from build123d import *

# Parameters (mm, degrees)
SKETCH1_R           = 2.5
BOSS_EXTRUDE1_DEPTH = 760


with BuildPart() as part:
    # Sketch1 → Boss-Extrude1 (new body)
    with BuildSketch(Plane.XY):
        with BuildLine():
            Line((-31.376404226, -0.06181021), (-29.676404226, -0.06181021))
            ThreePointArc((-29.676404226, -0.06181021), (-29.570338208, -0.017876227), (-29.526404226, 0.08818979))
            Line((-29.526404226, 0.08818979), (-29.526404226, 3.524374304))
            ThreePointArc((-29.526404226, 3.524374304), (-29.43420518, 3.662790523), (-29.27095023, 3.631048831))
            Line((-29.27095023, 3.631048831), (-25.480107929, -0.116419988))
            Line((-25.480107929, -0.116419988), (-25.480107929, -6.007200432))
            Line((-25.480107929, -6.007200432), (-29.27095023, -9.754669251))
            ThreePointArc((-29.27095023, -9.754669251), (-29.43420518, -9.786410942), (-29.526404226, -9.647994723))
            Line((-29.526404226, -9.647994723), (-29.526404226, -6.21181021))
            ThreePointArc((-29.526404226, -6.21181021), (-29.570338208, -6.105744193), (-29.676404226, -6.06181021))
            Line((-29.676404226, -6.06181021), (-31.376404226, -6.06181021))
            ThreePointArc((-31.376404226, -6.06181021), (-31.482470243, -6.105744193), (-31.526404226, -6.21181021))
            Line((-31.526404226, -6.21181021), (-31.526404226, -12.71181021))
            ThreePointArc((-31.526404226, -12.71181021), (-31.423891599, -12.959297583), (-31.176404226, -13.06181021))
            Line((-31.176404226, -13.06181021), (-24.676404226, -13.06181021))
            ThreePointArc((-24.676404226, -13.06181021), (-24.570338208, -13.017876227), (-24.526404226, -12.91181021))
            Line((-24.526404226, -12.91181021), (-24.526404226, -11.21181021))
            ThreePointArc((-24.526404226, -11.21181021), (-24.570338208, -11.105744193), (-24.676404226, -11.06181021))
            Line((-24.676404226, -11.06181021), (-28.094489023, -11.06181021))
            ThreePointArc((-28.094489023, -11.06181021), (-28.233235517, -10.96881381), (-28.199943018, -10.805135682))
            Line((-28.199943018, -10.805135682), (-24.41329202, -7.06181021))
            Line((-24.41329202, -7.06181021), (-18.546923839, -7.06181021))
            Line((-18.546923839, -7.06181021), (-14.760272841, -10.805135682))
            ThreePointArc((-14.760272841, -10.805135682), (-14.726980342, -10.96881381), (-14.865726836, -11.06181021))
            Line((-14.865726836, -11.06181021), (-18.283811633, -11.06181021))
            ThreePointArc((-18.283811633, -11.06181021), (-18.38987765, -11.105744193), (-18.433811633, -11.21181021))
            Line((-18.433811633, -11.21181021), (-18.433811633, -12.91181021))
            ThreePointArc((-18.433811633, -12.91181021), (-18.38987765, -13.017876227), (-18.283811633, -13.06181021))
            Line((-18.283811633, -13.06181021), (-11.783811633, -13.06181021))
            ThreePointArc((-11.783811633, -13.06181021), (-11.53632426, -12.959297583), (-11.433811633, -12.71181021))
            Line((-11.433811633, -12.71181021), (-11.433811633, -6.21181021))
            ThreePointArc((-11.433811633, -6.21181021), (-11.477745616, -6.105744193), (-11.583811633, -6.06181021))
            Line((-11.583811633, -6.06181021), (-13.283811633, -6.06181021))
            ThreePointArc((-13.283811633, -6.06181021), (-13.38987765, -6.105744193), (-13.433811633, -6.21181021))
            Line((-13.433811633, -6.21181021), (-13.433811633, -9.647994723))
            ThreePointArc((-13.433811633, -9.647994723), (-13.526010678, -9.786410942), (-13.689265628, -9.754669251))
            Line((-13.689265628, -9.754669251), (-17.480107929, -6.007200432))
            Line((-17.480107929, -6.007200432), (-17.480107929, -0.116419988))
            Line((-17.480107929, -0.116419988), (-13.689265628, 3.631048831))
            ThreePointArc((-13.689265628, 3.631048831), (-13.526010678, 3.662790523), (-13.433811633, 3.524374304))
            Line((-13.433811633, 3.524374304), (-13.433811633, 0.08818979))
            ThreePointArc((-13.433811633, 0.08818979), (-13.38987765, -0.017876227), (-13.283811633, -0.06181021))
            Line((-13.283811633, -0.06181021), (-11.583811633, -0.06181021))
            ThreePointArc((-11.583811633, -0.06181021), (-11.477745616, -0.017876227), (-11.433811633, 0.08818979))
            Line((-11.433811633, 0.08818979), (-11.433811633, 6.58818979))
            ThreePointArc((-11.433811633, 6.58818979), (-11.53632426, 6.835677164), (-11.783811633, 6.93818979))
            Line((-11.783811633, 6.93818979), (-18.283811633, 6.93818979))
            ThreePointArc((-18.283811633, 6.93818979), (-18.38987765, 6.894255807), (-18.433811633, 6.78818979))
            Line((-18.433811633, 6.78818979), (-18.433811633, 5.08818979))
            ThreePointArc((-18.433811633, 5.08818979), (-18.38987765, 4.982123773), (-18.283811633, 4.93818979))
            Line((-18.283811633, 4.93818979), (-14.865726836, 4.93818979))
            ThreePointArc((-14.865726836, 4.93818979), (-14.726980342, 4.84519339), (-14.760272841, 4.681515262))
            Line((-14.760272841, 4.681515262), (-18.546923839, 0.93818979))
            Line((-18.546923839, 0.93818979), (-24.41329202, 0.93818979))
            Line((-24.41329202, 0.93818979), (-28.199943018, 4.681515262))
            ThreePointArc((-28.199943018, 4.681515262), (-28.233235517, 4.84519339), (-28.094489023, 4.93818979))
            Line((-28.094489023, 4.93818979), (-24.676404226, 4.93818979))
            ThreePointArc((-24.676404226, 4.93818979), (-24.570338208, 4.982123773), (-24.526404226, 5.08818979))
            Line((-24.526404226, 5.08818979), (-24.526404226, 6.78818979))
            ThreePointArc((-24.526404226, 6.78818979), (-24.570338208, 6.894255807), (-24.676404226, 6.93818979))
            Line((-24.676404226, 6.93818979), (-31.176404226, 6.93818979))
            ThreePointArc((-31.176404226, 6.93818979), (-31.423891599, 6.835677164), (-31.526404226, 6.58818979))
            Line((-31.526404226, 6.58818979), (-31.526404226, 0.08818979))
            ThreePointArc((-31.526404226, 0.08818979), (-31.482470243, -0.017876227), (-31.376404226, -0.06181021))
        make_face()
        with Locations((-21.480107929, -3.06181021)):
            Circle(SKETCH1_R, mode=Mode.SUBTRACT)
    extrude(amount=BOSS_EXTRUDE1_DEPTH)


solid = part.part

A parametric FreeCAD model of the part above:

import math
import FreeCAD as App
import Part
import Sketcher
Q = App.Units.Quantity

doc = App.newDocument("Part")
body = doc.addObject("PartDesign::Body", "Body")

sketch1 = body.newObject("Sketcher::SketchObject", "Sketch")
sketch1.AttachmentSupport = (doc.getObject("XY_Plane"), [""])
sketch1.MapMode = "FlatFace"
sketch1.addGeometry([
    Part.LineSegment(App.Vector(-31.376404, -0.06181, 0), App.Vector(-29.676404, -0.06181, 0)),
    Part.ArcOfCircle(Part.Circle(App.Vector(-29.676404, 0.08819, 0), App.Vector(0, 0, 1), 0.15), math.radians(-90), math.radians(0)),
    Part.LineSegment(App.Vector(-29.526404, 0.08819, 0), App.Vector(-29.526404, 3.524374, 0)),
    Part.ArcOfCircle(Part.Circle(App.Vector(-29.376404, 3.524374, 0), App.Vector(0, 0, 1), 0.15), math.radians(45.329661), math.radians(180)),
    Part.LineSegment(App.Vector(-29.27095, 3.631049, 0), App.Vector(-25.480108, -0.11642, 0)),
    Part.LineSegment(App.Vector(-25.480108, -0.11642, 0), App.Vector(-25.480108, -6.0072, 0)),
    Part.LineSegment(App.Vector(-25.480108, -6.0072, 0), App.Vector(-29.27095, -9.754669, 0)),
    Part.ArcOfCircle(Part.Circle(App.Vector(-29.376404, -9.647995, 0), App.Vector(0, 0, 1), 0.15), math.radians(-180), math.radians(-45.329662)),
    Part.LineSegment(App.Vector(-29.526404, -9.647995, 0), App.Vector(-29.526404, -6.21181, 0)),
    Part.ArcOfCircle(Part.Circle(App.Vector(-29.676404, -6.21181, 0), App.Vector(0, 0, 1), 0.15), math.radians(0), math.radians(90)),
    Part.LineSegment(App.Vector(-29.676404, -6.06181, 0), App.Vector(-31.376404, -6.06181, 0)),
    Part.ArcOfCircle(Part.Circle(App.Vector(-31.376404, -6.21181, 0), App.Vector(0, 0, 1), 0.15), math.radians(90), math.radians(180)),
    Part.LineSegment(App.Vector(-31.526404, -6.21181, 0), App.Vector(-31.526404, -12.71181, 0)),
    Part.ArcOfCircle(Part.Circle(App.Vector(-31.176404, -12.71181, 0), App.Vector(0, 0, 1), 0.35), math.radians(-180), math.radians(-90)),
    Part.LineSegment(App.Vector(-31.176404, -13.06181, 0), App.Vector(-24.676404, -13.06181, 0)),
    Part.ArcOfCircle(Part.Circle(App.Vector(-24.676404, -12.91181, 0), App.Vector(0, 0, 1), 0.15), math.radians(-90), math.radians(0)),
    Part.LineSegment(App.Vector(-24.526404, -12.91181, 0), App.Vector(-24.526404, -11.21181, 0)),
    Part.ArcOfCircle(Part.Circle(App.Vector(-24.676404, -11.21181, 0), App.Vector(0, 0, 1), 0.15), math.radians(0), math.radians(90)),
    Part.LineSegment(App.Vector(-24.676404, -11.06181, 0), App.Vector(-28.094489, -11.06181, 0)),
    Part.ArcOfCircle(Part.Circle(App.Vector(-28.094489, -10.91181, 0), App.Vector(0, 0, 1), 0.15), math.radians(134.670338), math.radians(270)),
    Part.LineSegment(App.Vector(-28.199943, -10.805136, 0), App.Vector(-24.413292, -7.06181, 0)),
    Part.LineSegment(App.Vector(-24.413292, -7.06181, 0), App.Vector(-18.546924, -7.06181, 0)),
    Part.LineSegment(App.Vector(-18.546924, -7.06181, 0), App.Vector(-14.760273, -10.805136, 0)),
    Part.ArcOfCircle(Part.Circle(App.Vector(-14.865727, -10.91181, 0), App.Vector(0, 0, 1), 0.15), math.radians(-90), math.radians(45.329662)),
    Part.LineSegment(App.Vector(-14.865727, -11.06181, 0), App.Vector(-18.283812, -11.06181, 0)),
    Part.ArcOfCircle(Part.Circle(App.Vector(-18.283812, -11.21181, 0), App.Vector(0, 0, 1), 0.15), math.radians(90), math.radians(180)),
    Part.LineSegment(App.Vector(-18.433812, -11.21181, 0), App.Vector(-18.433812, -12.91181, 0)),
    Part.ArcOfCircle(Part.Circle(App.Vector(-18.283812, -12.91181, 0), App.Vector(0, 0, 1), 0.15), math.radians(-180), math.radians(-90)),
    Part.LineSegment(App.Vector(-18.283812, -13.06181, 0), App.Vector(-11.783812, -13.06181, 0)),
    Part.ArcOfCircle(Part.Circle(App.Vector(-11.783812, -12.71181, 0), App.Vector(0, 0, 1), 0.35), math.radians(-90), math.radians(0)),
    Part.LineSegment(App.Vector(-11.433812, -12.71181, 0), App.Vector(-11.433812, -6.21181, 0)),
    Part.ArcOfCircle(Part.Circle(App.Vector(-11.583812, -6.21181, 0), App.Vector(0, 0, 1), 0.15), math.radians(0), math.radians(90)),
    Part.LineSegment(App.Vector(-11.583812, -6.06181, 0), App.Vector(-13.283812, -6.06181, 0)),
    Part.ArcOfCircle(Part.Circle(App.Vector(-13.283812, -6.21181, 0), App.Vector(0, 0, 1), 0.15), math.radians(90), math.radians(180)),
    Part.LineSegment(App.Vector(-13.433812, -6.21181, 0), App.Vector(-13.433812, -9.647995, 0)),
    Part.ArcOfCircle(Part.Circle(App.Vector(-13.583812, -9.647995, 0), App.Vector(0, 0, 1), 0.15), math.radians(-134.670338), math.radians(0)),
    Part.LineSegment(App.Vector(-13.689266, -9.754669, 0), App.Vector(-17.480108, -6.0072, 0)),
    Part.LineSegment(App.Vector(-17.480108, -6.0072, 0), App.Vector(-17.480108, -0.11642, 0)),
    Part.LineSegment(App.Vector(-17.480108, -0.11642, 0), App.Vector(-13.689266, 3.631049, 0)),
    Part.ArcOfCircle(Part.Circle(App.Vector(-13.583812, 3.524374, 0), App.Vector(0, 0, 1), 0.15), math.radians(0), math.radians(134.670339)),
    Part.LineSegment(App.Vector(-13.433812, 3.524374, 0), App.Vector(-13.433812, 0.08819, 0)),
    Part.ArcOfCircle(Part.Circle(App.Vector(-13.283812, 0.08819, 0), App.Vector(0, 0, 1), 0.15), math.radians(-180), math.radians(-90)),
    Part.LineSegment(App.Vector(-13.283812, -0.06181, 0), App.Vector(-11.583812, -0.06181, 0)),
    Part.ArcOfCircle(Part.Circle(App.Vector(-11.583812, 0.08819, 0), App.Vector(0, 0, 1), 0.15), math.radians(-90), math.radians(0)),
    Part.LineSegment(App.Vector(-11.433812, 0.08819, 0), App.Vector(-11.433812, 6.58819, 0)),
    Part.ArcOfCircle(Part.Circle(App.Vector(-11.783812, 6.58819, 0), App.Vector(0, 0, 1), 0.35), math.radians(0), math.radians(90)),
    Part.LineSegment(App.Vector(-11.783812, 6.93819, 0), App.Vector(-18.283812, 6.93819, 0)),
    Part.ArcOfCircle(Part.Circle(App.Vector(-18.283812, 6.78819, 0), App.Vector(0, 0, 1), 0.15), math.radians(90), math.radians(180)),
    Part.LineSegment(App.Vector(-18.433812, 6.78819, 0), App.Vector(-18.433812, 5.08819, 0)),
    Part.ArcOfCircle(Part.Circle(App.Vector(-18.283812, 5.08819, 0), App.Vector(0, 0, 1), 0.15), math.radians(-180), math.radians(-90)),
    Part.LineSegment(App.Vector(-18.283812, 4.93819, 0), App.Vector(-14.865727, 4.93819, 0)),
    Part.ArcOfCircle(Part.Circle(App.Vector(-14.865727, 4.78819, 0), App.Vector(0, 0, 1), 0.15), math.radians(-45.329662), math.radians(90)),
    Part.LineSegment(App.Vector(-14.760273, 4.681515, 0), App.Vector(-18.546924, 0.93819, 0)),
    Part.LineSegment(App.Vector(-18.546924, 0.93819, 0), App.Vector(-24.413292, 0.93819, 0)),
    Part.LineSegment(App.Vector(-24.413292, 0.93819, 0), App.Vector(-28.199943, 4.681515, 0)),
    Part.ArcOfCircle(Part.Circle(App.Vector(-28.094489, 4.78819, 0), App.Vector(0, 0, 1), 0.15), math.radians(90), math.radians(225.329662)),
    Part.LineSegment(App.Vector(-28.094489, 4.93819, 0), App.Vector(-24.676404, 4.93819, 0)),
    Part.ArcOfCircle(Part.Circle(App.Vector(-24.676404, 5.08819, 0), App.Vector(0, 0, 1), 0.15), math.radians(-90), math.radians(0)),
    Part.LineSegment(App.Vector(-24.526404, 5.08819, 0), App.Vector(-24.526404, 6.78819, 0)),
    Part.ArcOfCircle(Part.Circle(App.Vector(-24.676404, 6.78819, 0), App.Vector(0, 0, 1), 0.15), math.radians(0), math.radians(90)),
    Part.LineSegment(App.Vector(-24.676404, 6.93819, 0), App.Vector(-31.176404, 6.93819, 0)),
    Part.ArcOfCircle(Part.Circle(App.Vector(-31.176404, 6.58819, 0), App.Vector(0, 0, 1), 0.35), math.radians(90), math.radians(180)),
    Part.LineSegment(App.Vector(-31.526404, 6.58819, 0), App.Vector(-31.526404, 0.08819, 0)),
    Part.ArcOfCircle(Part.Circle(App.Vector(-31.376404, 0.08819, 0), App.Vector(0, 0, 1), 0.15), math.radians(-180), math.radians(-90)),
    Part.Circle(App.Vector(-21.480108, -3.06181, 0), App.Vector(0, 0, 1), 2.5),
], False)
sketch1.addConstraint([
    Sketcher.Constraint("Tangent", 0, 2, 1, 1),
    Sketcher.Constraint("Tangent", 1, 2, 2, 1),
    Sketcher.Constraint("Tangent", 2, 2, 3, 2),
    Sketcher.Constraint("Tangent", 3, 1, 4, 1),
    Sketcher.Constraint("Coincident", 4, 2, 5, 1),
    Sketcher.Constraint("Coincident", 5, 2, 6, 1),
    Sketcher.Constraint("Tangent", 6, 2, 7, 2),
    Sketcher.Constraint("Tangent", 7, 1, 8, 1),
    Sketcher.Constraint("Tangent", 8, 2, 9, 1),
    Sketcher.Constraint("Tangent", 9, 2, 10, 1),
    Sketcher.Constraint("Tangent", 10, 2, 11, 1),
    Sketcher.Constraint("Tangent", 11, 2, 12, 1),
    Sketcher.Constraint("Tangent", 12, 2, 13, 1),
    Sketcher.Constraint("Tangent", 13, 2, 14, 1),
    Sketcher.Constraint("Tangent", 14, 2, 15, 1),
    Sketcher.Constraint("Tangent", 15, 2, 16, 1),
    Sketcher.Constraint("Tangent", 16, 2, 17, 1),
    Sketcher.Constraint("Tangent", 17, 2, 18, 1),
    Sketcher.Constraint("Tangent", 18, 2, 19, 2),
    Sketcher.Constraint("Tangent", 19, 1, 20, 1),
    Sketcher.Constraint("Coincident", 20, 2, 21, 1),
    Sketcher.Constraint("Coincident", 21, 2, 22, 1),
    Sketcher.Constraint("Tangent", 22, 2, 23, 2),
    Sketcher.Constraint("Tangent", 23, 1, 24, 1),
    Sketcher.Constraint("Tangent", 24, 2, 25, 1),
    Sketcher.Constraint("Tangent", 25, 2, 26, 1),
    Sketcher.Constraint("Tangent", 26, 2, 27, 1),
    Sketcher.Constraint("Tangent", 27, 2, 28, 1),
    Sketcher.Constraint("Tangent", 28, 2, 29, 1),
    Sketcher.Constraint("Tangent", 29, 2, 30, 1),
    Sketcher.Constraint("Tangent", 30, 2, 31, 1),
    Sketcher.Constraint("Tangent", 31, 2, 32, 1),
    Sketcher.Constraint("Tangent", 32, 2, 33, 1),
    Sketcher.Constraint("Tangent", 33, 2, 34, 1),
    Sketcher.Constraint("Tangent", 34, 2, 35, 2),
    Sketcher.Constraint("Tangent", 35, 1, 36, 1),
    Sketcher.Constraint("Coincident", 36, 2, 37, 1),
    Sketcher.Constraint("Coincident", 37, 2, 38, 1),
    Sketcher.Constraint("Tangent", 38, 2, 39, 2),
    Sketcher.Constraint("Tangent", 39, 1, 40, 1),
    Sketcher.Constraint("Tangent", 40, 2, 41, 1),
    Sketcher.Constraint("Tangent", 41, 2, 42, 1),
    Sketcher.Constraint("Tangent", 42, 2, 43, 1),
    Sketcher.Constraint("Tangent", 43, 2, 44, 1),
    Sketcher.Constraint("Tangent", 44, 2, 45, 1),
    Sketcher.Constraint("Tangent", 45, 2, 46, 1),
    Sketcher.Constraint("Tangent", 46, 2, 47, 1),
    Sketcher.Constraint("Tangent", 47, 2, 48, 1),
    Sketcher.Constraint("Tangent", 48, 2, 49, 1),
    Sketcher.Constraint("Tangent", 49, 2, 50, 1),
    Sketcher.Constraint("Tangent", 50, 2, 51, 2),
    Sketcher.Constraint("Tangent", 51, 1, 52, 1),
    Sketcher.Constraint("Coincident", 52, 2, 53, 1),
    Sketcher.Constraint("Coincident", 53, 2, 54, 1),
    Sketcher.Constraint("Tangent", 54, 2, 55, 2),
    Sketcher.Constraint("Tangent", 55, 1, 56, 1),
    Sketcher.Constraint("Tangent", 56, 2, 57, 1),
    Sketcher.Constraint("Tangent", 57, 2, 58, 1),
    Sketcher.Constraint("Tangent", 58, 2, 59, 1),
    Sketcher.Constraint("Tangent", 59, 2, 60, 1),
    Sketcher.Constraint("Tangent", 60, 2, 61, 1),
    Sketcher.Constraint("Tangent", 61, 2, 62, 1),
    Sketcher.Constraint("Tangent", 62, 2, 63, 1),
    Sketcher.Constraint("Tangent", 63, 2, 0, 1),
    Sketcher.Constraint("Horizontal", 0),
    Sketcher.Constraint("Vertical", 2),
    Sketcher.Constraint("Vertical", 5),
    Sketcher.Constraint("Vertical", 8),
    Sketcher.Constraint("Horizontal", 10),
    Sketcher.Constraint("Vertical", 12),
    Sketcher.Constraint("Horizontal", 14),
    Sketcher.Constraint("Vertical", 16),
    Sketcher.Constraint("Horizontal", 18),
    Sketcher.Constraint("Horizontal", 21),
    Sketcher.Constraint("Horizontal", 24),
    Sketcher.Constraint("Vertical", 26),
    Sketcher.Constraint("Horizontal", 28),
    Sketcher.Constraint("Vertical", 30),
    Sketcher.Constraint("Horizontal", 32),
    Sketcher.Constraint("Vertical", 34),
    Sketcher.Constraint("Vertical", 37),
    Sketcher.Constraint("Vertical", 40),
    Sketcher.Constraint("Horizontal", 42),
    Sketcher.Constraint("Vertical", 44),
    Sketcher.Constraint("Horizontal", 46),
    Sketcher.Constraint("Vertical", 48),
    Sketcher.Constraint("Horizontal", 50),
    Sketcher.Constraint("Horizontal", 53),
    Sketcher.Constraint("Horizontal", 56),
    Sketcher.Constraint("Vertical", 58),
    Sketcher.Constraint("Horizontal", 60),
    Sketcher.Constraint("Vertical", 62),
    Sketcher.Constraint("Equal", 1, 3),
    Sketcher.Constraint("Equal", 3, 7),
    Sketcher.Constraint("Equal", 7, 9),
    Sketcher.Constraint("Equal", 9, 11),
    Sketcher.Constraint("Equal", 11, 15),
    Sketcher.Constraint("Equal", 15, 17),
    Sketcher.Constraint("Equal", 17, 19),
    Sketcher.Constraint("Equal", 19, 23),
    Sketcher.Constraint("Equal", 23, 25),
    Sketcher.Constraint("Equal", 25, 27),
    Sketcher.Constraint("Equal", 13, 29),
    Sketcher.Constraint("Equal", 27, 31),
    Sketcher.Constraint("Equal", 31, 33),
    Sketcher.Constraint("Equal", 33, 35),
    Sketcher.Constraint("Equal", 35, 39),
    Sketcher.Constraint("Equal", 39, 41),
    Sketcher.Constraint("Equal", 41, 43),
    Sketcher.Constraint("Equal", 29, 45),
    Sketcher.Constraint("Equal", 43, 47),
    Sketcher.Constraint("Equal", 47, 49),
    Sketcher.Constraint("Equal", 49, 51),
    Sketcher.Constraint("Equal", 51, 55),
    Sketcher.Constraint("Equal", 55, 57),
    Sketcher.Constraint("Equal", 57, 59),
    Sketcher.Constraint("Equal", 45, 61),
    Sketcher.Constraint("Equal", 59, 63),
    Sketcher.Constraint("Parallel", 6, 20),
    Sketcher.Constraint("Parallel", 4, 22),
    Sketcher.Constraint("Parallel", 22, 36),
    Sketcher.Constraint("Parallel", 20, 38),
    Sketcher.Constraint("Parallel", 38, 52),
    Sketcher.Constraint("Parallel", 36, 54),
    Sketcher.Constraint("Horizontal", 19, 3, 23, 3),
    Sketcher.Constraint("Horizontal", 15, 3, 27, 3),
    Sketcher.Constraint("Horizontal", 11, 3, 31, 3),
    Sketcher.Constraint("Horizontal", 7, 3, 35, 3),
    Sketcher.Constraint("Horizontal", 3, 3, 39, 3),
    Sketcher.Constraint("Horizontal", 1, 3, 41, 3),
    Sketcher.Constraint("Horizontal", 51, 3, 55, 3),
    Sketcher.Constraint("Horizontal", 47, 3, 59, 3),
    Sketcher.Constraint("Horizontal", 19, 1, 22, 2),
    Sketcher.Constraint("Horizontal", 5, 2, 36, 2),
    Sketcher.Constraint("Horizontal", 4, 2, 37, 2),
    Sketcher.Constraint("Vertical", 3, 3, 7, 3),
    Sketcher.Constraint("Vertical", 31, 3, 43, 3),
    Sketcher.Constraint("Vertical", 27, 3, 47, 3),
    Sketcher.Constraint("Vertical", 23, 3, 51, 3),
    Sketcher.Constraint("Vertical", 19, 3, 55, 3),
    Sketcher.Constraint("Vertical", 17, 3, 57, 3),
    Sketcher.Constraint("Vertical", 13, 3, 61, 3),
    Sketcher.Constraint("Vertical", 21, 2, 52, 2),
    Sketcher.Constraint("Equal", 18, 24),
    Sketcher.Constraint("Equal", 14, 28),
    Sketcher.Constraint("Equal", 10, 32),
    Sketcher.Constraint("Equal", 2, 8),
    Sketcher.Constraint("Equal", 60, 12),
    Sketcher.Constraint("Equal", 42, 16),
    Sketcher.Constraint("Equal", 30, 44),
    Sketcher.Constraint("Equal", 26, 48),
    Sketcher.Constraint("Diameter", 64, Q("5 mm")),
    Sketcher.Constraint("Radius", 1, Q("0.15 mm")),
    Sketcher.Constraint("Radius", 13, Q("0.35 mm")),
    Sketcher.Constraint("DistanceX", 0, 1, 0, 2, Q("1.7 mm")),
    Sketcher.Constraint("DistanceX", 14, 1, 14, 2, Q("6.5 mm")),
    Sketcher.Constraint("DistanceX", 21, 1, 21, 2, Q("5.866368 mm")),
    Sketcher.Constraint("DistanceY", 5, 2, 5, 1, Q("5.89078 mm")),
    Sketcher.Constraint("DistanceY", 5, 2, -1, 1, Q("6.0072 mm")),
    Sketcher.Constraint("Distance", 4, Q("5.330479 mm")),
    Sketcher.Constraint("DistanceX", 18, 2, 18, 1, Q("3.418085 mm")),
    Sketcher.Constraint("DistanceY", 2, 1, 2, 2, Q("3.436185 mm")),
    Sketcher.Constraint("DistanceY", -1, 1, 1, 3, Q("0.08819 mm")),
    Sketcher.Constraint("DistanceX", 19, 3, -1, 1, Q("28.094489 mm")),
    Sketcher.Constraint("DistanceX", 25, 3, -1, 1, Q("18.283812 mm")),
    Sketcher.Constraint("DistanceY", 64, 3, -1, 1, Q("3.06181 mm")),
    Sketcher.Constraint("DistanceX", 64, 3, -1, 1, Q("21.480108 mm")),
])
pad1 = body.newObject("PartDesign::Pad", "Pad")
pad1.Profile = sketch1
pad1.Length = 760

doc.recompute()
